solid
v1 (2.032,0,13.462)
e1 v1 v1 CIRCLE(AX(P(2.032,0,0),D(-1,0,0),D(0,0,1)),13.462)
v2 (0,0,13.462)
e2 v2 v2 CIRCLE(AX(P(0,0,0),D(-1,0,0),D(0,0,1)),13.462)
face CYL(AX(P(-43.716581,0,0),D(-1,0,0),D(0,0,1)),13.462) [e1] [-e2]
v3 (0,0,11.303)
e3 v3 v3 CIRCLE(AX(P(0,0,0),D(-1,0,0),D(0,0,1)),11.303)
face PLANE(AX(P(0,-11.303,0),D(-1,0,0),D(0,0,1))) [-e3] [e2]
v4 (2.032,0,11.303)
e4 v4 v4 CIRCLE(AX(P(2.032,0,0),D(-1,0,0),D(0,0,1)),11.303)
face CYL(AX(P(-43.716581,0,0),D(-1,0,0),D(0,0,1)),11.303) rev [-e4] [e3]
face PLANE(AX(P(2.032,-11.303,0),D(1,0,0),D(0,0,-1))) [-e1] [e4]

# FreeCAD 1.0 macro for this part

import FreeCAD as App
import Part
import Sketcher
Q = App.Units.Quantity

doc = App.newDocument("Part")
body = doc.addObject("PartDesign::Body", "Body")

sketch1 = body.newObject("Sketcher::SketchObject", "Sketch")
sketch1.AttachmentSupport = (doc.getObject("XY_Plane"), [""])
sketch1.MapMode = "FlatFace"
sketch1.addGeometry([
    Part.LineSegment(App.Vector(0, -11.3, 0), App.Vector(0, -13.5, 0)),
    Part.LineSegment(App.Vector(0, -13.5, 0), App.Vector(2, -13.5, 0)),
    Part.LineSegment(App.Vector(2, -13.5, 0), App.Vector(2, -11.3, 0)),
    Part.LineSegment(App.Vector(2, -11.3, 0), App.Vector(0, -11.3, 0)),
], False)
sketch1.addConstraint([
    Sketcher.Constraint("Coincident", 0, 2, 1, 1),
    Sketcher.Constraint("Coincident", 1, 2, 2, 1),
    Sketcher.Constraint("Coincident", 2, 2, 3, 1),
    Sketcher.Constraint("Coincident", 3, 2, 0, 1),
    Sketcher.Constraint("Vertical", 0),
    Sketcher.Constraint("Horizontal", 1),
    Sketcher.Constraint("Vertical", 2),
    Sketcher.Constraint("Horizontal", 3),
    Sketcher.Constraint("PointOnObject", 0, 2, -2),
    Sketcher.Constraint("DistanceX", 1, 1, 1, 2, Q("0.08 in")),
    Sketcher.Constraint("DistanceY", 0, 2, 0, 1, Q("0.085 in")),
    Sketcher.Constraint("DistanceY", 0, 2, -1, 1, Q("0.53 in")),
])
revolution = body.newObject("PartDesign::Revolution", "Revolution")
revolution.Profile = sketch1
revolution.ReferenceAxis = (sketch1, ["H_Axis"])
revolution.Angle = 360

doc.recompute()
